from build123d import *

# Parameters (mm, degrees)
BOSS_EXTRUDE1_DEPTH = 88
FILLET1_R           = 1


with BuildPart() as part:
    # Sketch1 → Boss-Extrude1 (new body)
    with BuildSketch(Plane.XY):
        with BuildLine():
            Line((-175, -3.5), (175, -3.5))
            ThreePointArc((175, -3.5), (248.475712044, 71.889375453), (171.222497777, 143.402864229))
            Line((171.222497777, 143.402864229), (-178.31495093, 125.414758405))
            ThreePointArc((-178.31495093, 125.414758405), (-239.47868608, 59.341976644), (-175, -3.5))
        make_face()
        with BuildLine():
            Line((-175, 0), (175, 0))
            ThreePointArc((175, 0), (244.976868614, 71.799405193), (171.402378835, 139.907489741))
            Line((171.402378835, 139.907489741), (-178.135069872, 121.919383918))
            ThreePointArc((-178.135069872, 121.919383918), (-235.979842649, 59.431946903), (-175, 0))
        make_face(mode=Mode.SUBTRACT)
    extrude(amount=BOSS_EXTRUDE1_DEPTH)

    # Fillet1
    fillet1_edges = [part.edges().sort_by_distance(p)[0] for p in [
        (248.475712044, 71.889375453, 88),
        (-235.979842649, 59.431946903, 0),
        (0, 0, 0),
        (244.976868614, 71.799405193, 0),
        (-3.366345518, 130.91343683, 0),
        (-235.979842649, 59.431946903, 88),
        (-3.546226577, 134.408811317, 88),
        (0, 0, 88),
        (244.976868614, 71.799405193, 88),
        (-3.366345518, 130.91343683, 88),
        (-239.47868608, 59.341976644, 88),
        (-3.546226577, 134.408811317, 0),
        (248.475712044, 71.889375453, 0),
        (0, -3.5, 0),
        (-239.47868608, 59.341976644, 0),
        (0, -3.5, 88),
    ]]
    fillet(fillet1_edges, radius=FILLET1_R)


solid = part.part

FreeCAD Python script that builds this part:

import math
import FreeCAD as App
import Part
import Sketcher

V = App.Vector


def edges_at(feature, points):
    """Names of the edges that pass closest to the given points."""
    edges = feature.Shape.Edges
    near = lambda p: min(range(len(edges)), key=lambda i: edges[i].distToShape(Part.Vertex(*p))[0])
    return sorted({f"Edge{near(p) + 1}" for p in points})

doc = App.newDocument("Part")
params = doc.addObject("Spreadsheet::Sheet", "Params")
for row, (alias, value) in enumerate([
    ("sketch1_radius", "61 mm"),
    ("sketch1_radius2", "70 mm"),
    ("sketch1_radius3", "73.5 mm"),
    ("sketch1_width", "350 mm"),
    ("pad1_length", "88 mm"),
    ("fillet_radius", "1 mm"),
], start=1):
    params.set(f"A{row}", alias)
    params.set(f"B{row}", "=" + value)
    params.setAlias(f"B{row}", alias)

body = doc.addObject("PartDesign::Body", "Body")

sketch1 = body.newObject("Sketcher::SketchObject", "Sketch")
sketch1.AttachmentSupport = (doc.getObject("XY_Plane"), [""])
sketch1.MapMode = "FlatFace"
sketch1.addGeometry([
    Part.LineSegment(V(-175, -4, 0), V(175, -4, 0)),
    Part.ArcOfCircle(Part.Circle(V(175, 70, 0), V(0, 0, 1), 74), math.radians(-90), math.radians(93)),
    Part.LineSegment(V(171, 143, 0), V(-178, 125, 0)),
    Part.ArcOfCircle(Part.Circle(V(-175, 61, 0), V(0, 0, 1), 64), math.radians(93), math.radians(270)),
    Part.LineSegment(V(175, 0, 0), V(-175, 0, 0)),
    Part.ArcOfCircle(Part.Circle(V(-175, 61, 0), V(0, 0, 1), 61), math.radians(93), math.radians(270)),
    Part.LineSegment(V(-178, 122, 0), V(171, 140, 0)),
    Part.ArcOfCircle(Part.Circle(V(175, 70, 0), V(0, 0, 1), 70), math.radians(-90), math.radians(93)),
], False)
sketch1.addConstraint([
    Sketcher.Constraint("Tangent", 0, 2, 1, 1),
    Sketcher.Constraint("Tangent", 1, 2, 2, 1),
    Sketcher.Constraint("Tangent", 2, 2, 3, 1),
    Sketcher.Constraint("Tangent", 3, 2, 0, 1),
    Sketcher.Constraint("Tangent", 4, 2, 5, 2),
    Sketcher.Constraint("Tangent", 5, 1, 6, 1),
    Sketcher.Constraint("Tangent", 6, 2, 7, 2),
    Sketcher.Constraint("Tangent", 7, 1, 4, 1),
    Sketcher.Constraint("Horizontal", 0),
    Sketcher.Constraint("Horizontal", 4),
    Sketcher.Constraint("Coincident", 5, 3, 3, 3),
    Sketcher.Constraint("Coincident", 7, 3, 1, 3),
    Sketcher.Constraint("Symmetric", 4, 2, 7, 1, -1, 1),
    Sketcher.Constraint("Radius", 5, 61.0),
    Sketcher.Constraint("Radius", 7, 70.0),
    Sketcher.Constraint("Radius", 1, 73.5),
    Sketcher.Constraint("DistanceX", 0, 1, 0, 2, 350.0),
])
sketch1.setExpression("Constraints[13]", "Params.sketch1_radius")
sketch1.setExpression("Constraints[14]", "Params.sketch1_radius2")
sketch1.setExpression("Constraints[15]", "Params.sketch1_radius3")
sketch1.setExpression("Constraints[16]", "Params.sketch1_width")
pad1 = body.newObject("PartDesign::Pad", "Pad")
pad1.Profile = sketch1
pad1.setExpression("Length", "Params.pad1_length")
doc.recompute()

fillet = body.newObject("PartDesign::Fillet", "Fillet")
fillet.Base = (pad1, edges_at(pad1, [
    (248.476, 71.889, 88),
    (-235.98, 59.432, 0),
    (0, 0, 0),
    (244.977, 71.799, 0),
    (-3.366, 130.913, 0),
    (-235.98, 59.432, 88),
    (-3.546, 134.409, 88),
    (0, 0, 88),
    (244.977, 71.799, 88),
    (-3.366, 130.913, 88),
    (-239.479, 59.342, 88),
    (-3.546, 134.409, 0),
    (248.476, 71.889, 0),
    (0, -3.5, 0),
    (-239.479, 59.342, 0),
    (0, -3.5, 88),
]))
fillet.setExpression("Radius", "Params.fillet_radius")

doc.recompute()
